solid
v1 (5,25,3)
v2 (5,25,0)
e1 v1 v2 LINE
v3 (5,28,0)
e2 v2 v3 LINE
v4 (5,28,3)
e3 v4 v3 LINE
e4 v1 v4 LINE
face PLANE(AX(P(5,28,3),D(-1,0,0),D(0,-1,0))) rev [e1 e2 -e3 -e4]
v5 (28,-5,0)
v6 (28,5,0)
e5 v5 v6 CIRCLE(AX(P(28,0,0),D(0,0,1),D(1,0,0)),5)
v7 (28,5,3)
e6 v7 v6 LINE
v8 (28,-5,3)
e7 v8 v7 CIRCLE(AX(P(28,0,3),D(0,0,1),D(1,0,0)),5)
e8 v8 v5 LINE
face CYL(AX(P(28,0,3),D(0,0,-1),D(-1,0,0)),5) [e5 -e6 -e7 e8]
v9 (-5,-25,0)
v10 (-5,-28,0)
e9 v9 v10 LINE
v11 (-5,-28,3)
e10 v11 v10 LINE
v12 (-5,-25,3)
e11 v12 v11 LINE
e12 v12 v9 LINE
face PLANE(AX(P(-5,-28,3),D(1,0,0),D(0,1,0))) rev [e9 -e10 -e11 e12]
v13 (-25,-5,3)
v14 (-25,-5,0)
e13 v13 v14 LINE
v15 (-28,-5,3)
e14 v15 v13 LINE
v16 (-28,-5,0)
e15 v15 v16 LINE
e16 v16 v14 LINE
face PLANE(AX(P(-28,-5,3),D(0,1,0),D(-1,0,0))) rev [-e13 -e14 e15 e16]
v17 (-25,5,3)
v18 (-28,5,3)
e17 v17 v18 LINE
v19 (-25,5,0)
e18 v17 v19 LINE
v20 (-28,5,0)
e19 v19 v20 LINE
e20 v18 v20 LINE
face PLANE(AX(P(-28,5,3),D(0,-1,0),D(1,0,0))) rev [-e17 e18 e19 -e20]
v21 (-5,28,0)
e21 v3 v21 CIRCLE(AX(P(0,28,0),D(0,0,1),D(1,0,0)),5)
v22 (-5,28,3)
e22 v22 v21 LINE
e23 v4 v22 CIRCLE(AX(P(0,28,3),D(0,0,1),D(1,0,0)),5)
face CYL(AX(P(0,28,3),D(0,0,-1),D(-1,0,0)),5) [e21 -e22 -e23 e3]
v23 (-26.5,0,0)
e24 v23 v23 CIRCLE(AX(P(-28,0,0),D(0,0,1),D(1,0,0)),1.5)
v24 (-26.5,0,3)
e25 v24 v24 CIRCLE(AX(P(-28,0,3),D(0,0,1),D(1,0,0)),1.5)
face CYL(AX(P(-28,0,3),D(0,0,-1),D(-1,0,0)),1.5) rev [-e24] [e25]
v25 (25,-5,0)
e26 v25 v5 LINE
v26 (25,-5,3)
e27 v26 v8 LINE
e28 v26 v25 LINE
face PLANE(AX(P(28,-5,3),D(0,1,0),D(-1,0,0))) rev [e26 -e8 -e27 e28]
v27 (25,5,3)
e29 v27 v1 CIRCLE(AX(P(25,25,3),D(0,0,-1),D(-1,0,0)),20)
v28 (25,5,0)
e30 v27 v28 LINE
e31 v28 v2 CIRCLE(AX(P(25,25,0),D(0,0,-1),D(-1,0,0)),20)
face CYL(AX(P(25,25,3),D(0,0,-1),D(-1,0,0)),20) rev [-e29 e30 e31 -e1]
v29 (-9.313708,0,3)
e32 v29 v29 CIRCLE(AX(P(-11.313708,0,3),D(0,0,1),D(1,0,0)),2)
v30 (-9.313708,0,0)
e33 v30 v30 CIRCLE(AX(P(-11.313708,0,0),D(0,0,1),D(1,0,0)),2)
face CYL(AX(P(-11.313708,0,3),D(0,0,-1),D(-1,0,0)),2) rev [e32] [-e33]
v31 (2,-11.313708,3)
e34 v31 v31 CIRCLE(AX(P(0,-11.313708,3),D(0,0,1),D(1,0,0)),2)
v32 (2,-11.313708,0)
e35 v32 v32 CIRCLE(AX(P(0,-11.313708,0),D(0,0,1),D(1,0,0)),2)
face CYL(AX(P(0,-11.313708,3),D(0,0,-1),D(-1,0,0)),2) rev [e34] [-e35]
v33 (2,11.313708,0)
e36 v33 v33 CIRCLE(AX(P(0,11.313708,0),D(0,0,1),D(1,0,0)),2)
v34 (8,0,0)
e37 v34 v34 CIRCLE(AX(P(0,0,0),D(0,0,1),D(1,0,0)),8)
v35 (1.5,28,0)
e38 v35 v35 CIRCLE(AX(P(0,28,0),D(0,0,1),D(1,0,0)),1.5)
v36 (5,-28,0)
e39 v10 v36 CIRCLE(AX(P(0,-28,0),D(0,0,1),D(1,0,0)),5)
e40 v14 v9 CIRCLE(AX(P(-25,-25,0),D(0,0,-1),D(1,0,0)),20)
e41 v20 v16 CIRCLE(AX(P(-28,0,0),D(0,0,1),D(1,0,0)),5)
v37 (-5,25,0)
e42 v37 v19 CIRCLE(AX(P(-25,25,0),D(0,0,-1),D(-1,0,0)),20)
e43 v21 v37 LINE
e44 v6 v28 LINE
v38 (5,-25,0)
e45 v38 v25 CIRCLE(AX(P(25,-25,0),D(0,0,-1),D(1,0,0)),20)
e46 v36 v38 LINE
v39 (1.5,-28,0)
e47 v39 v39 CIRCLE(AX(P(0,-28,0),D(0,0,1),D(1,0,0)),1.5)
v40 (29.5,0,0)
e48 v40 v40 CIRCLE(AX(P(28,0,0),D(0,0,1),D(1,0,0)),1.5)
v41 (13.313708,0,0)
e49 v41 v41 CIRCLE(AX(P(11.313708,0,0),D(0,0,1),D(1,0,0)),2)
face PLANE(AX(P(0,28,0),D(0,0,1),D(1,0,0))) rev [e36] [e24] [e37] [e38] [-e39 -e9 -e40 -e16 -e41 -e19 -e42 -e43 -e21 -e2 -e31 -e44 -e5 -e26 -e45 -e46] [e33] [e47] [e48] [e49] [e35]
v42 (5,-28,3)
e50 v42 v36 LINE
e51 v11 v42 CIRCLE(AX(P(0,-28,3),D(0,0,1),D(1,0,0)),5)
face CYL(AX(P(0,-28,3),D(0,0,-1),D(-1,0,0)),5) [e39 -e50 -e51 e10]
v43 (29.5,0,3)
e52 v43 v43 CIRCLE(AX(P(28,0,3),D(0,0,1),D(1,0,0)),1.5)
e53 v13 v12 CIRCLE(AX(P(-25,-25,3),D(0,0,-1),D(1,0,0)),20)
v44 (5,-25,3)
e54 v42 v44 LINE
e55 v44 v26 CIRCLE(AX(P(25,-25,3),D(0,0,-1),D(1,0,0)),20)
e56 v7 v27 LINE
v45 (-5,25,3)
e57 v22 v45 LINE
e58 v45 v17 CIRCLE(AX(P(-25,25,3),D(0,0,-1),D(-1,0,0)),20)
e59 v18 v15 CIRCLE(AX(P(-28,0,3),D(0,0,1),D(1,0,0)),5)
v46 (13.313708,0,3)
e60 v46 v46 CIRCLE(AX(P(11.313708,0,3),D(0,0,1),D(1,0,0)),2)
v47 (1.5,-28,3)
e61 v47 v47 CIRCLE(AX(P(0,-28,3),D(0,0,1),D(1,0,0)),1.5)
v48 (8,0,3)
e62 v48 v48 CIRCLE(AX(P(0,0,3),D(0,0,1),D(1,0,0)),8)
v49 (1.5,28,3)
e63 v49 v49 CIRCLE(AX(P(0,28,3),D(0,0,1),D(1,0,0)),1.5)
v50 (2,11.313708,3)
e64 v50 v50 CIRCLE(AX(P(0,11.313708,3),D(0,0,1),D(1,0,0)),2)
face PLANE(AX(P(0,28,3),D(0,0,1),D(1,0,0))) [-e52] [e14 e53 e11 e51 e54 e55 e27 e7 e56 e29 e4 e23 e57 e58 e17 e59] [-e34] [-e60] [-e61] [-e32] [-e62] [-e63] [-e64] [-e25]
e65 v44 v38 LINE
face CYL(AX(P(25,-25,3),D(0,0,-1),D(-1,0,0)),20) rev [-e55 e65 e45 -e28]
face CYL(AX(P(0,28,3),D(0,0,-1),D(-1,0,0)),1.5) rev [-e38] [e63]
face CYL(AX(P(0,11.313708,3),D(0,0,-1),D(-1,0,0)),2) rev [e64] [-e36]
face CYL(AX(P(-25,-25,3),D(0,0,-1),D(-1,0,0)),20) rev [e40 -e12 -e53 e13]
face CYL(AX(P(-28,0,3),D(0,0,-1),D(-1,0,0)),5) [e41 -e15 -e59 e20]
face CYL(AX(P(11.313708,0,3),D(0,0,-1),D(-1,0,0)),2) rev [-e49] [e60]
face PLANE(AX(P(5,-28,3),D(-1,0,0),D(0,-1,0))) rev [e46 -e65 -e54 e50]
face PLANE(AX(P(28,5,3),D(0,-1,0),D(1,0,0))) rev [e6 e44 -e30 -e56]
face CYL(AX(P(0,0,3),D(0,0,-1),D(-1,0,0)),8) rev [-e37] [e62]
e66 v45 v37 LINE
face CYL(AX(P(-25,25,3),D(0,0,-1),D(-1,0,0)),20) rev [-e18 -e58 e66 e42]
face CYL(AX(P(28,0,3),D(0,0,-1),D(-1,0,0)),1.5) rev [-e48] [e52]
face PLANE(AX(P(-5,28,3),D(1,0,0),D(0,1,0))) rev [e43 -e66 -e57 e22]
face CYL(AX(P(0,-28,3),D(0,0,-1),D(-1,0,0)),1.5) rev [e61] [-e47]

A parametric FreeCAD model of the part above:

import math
import FreeCAD as App
import Part
import Sketcher
Q = App.Units.Quantity

doc = App.newDocument("Part")
body = doc.addObject("PartDesign::Body", "Body")

# Sketch on XY plane
sketch1 = body.newObject("Sketcher::SketchObject", "Sketch")
sketch1.AttachmentSupport = (doc.getObject("XY_Plane"), [""])
sketch1.MapMode = "FlatFace"
sketch1.addGeometry(Part.LineSegment(App.Vector(5, 25, 0), App.Vector(5, 28, 0)), False)
sketch1.addGeometry(Part.ArcOfCircle(Part.Circle(App.Vector(0, 28, 0), App.Vector(0, 0, 1), 5), math.radians(0), math.radians(180)), False)
sketch1.addGeometry(Part.LineSegment(App.Vector(-5, 28, 0), App.Vector(-5, 25, 0)), False)
sketch1.addGeometry(Part.ArcOfCircle(Part.Circle(App.Vector(-25, 25, 0), App.Vector(0, 0, 1), 20), math.radians(-90), math.radians(0)), False)
sketch1.addGeometry(Part.LineSegment(App.Vector(-25, 5, 0), App.Vector(-28, 5, 0)), False)
sketch1.addGeometry(Part.ArcOfCircle(Part.Circle(App.Vector(-28, 0, 0), App.Vector(0, 0, 1), 5), math.radians(90), math.radians(270)), False)
sketch1.addGeometry(Part.LineSegment(App.Vector(-28, -5, 0), App.Vector(-25, -5, 0)), False)
sketch1.addGeometry(Part.ArcOfCircle(Part.Circle(App.Vector(-25, -25, 0), App.Vector(0, 0, 1), 20), math.radians(0), math.radians(90)), False)
sketch1.addGeometry(Part.LineSegment(App.Vector(-5, -25, 0), App.Vector(-5, -28, 0)), False)
sketch1.addGeometry(Part.ArcOfCircle(Part.Circle(App.Vector(0, -28, 0), App.Vector(0, 0, 1), 5), math.radians(180), math.radians(360)), False)
sketch1.addGeometry(Part.LineSegment(App.Vector(5, -28, 0), App.Vector(5, -25, 0)), False)
sketch1.addGeometry(Part.ArcOfCircle(Part.Circle(App.Vector(25, -25, 0), App.Vector(0, 0, 1), 20), math.radians(90), math.radians(180)), False)
sketch1.addGeometry(Part.LineSegment(App.Vector(25, -5, 0), App.Vector(28, -5, 0)), False)
sketch1.addGeometry(Part.ArcOfCircle(Part.Circle(App.Vector(28, 0, 0), App.Vector(0, 0, 1), 5), math.radians(-90), math.radians(90)), False)
sketch1.addGeometry(Part.LineSegment(App.Vector(28, 5, 0), App.Vector(25, 5, 0)), False)
sketch1.addGeometry(Part.ArcOfCircle(Part.Circle(App.Vector(25, 25, 0), App.Vector(0, 0, 1), 20), math.radians(180), math.radians(270)), False)
sketch1.addGeometry(Part.Circle(App.Vector(0, -28, 0), App.Vector(0, 0, 1), 1.5), False)
sketch1.addGeometry(Part.Circle(App.Vector(0, -11.313708, 0), App.Vector(0, 0, 1), 2), False)
sketch1.addGeometry(Part.Circle(App.Vector(28, 0, 0), App.Vector(0, 0, 1), 1.5), False)
sketch1.addGeometry(Part.Circle(App.Vector(11.313708, 0, 0), App.Vector(0, 0, 1), 2), False)
sketch1.addGeometry(Part.Circle(App.Vector(0, 0, 0), App.Vector(0, 0, 1), 8), False)
sketch1.addGeometry(Part.Circle(App.Vector(-11.313708, 0, 0), App.Vector(0, 0, 1), 2), False)
sketch1.addGeometry(Part.Circle(App.Vector(0, 11.313708, 0), App.Vector(0, 0, 1), 2), False)
sketch1.addGeometry(Part.Circle(App.Vector(-28, 0, 0), App.Vector(0, 0, 1), 1.5), False)
sketch1.addGeometry(Part.Circle(App.Vector(0, 28, 0), App.Vector(0, 0, 1), 1.5), False)
sketch1.addConstraint(Sketcher.Constraint("Tangent", 0, 2, 1, 1))
sketch1.addConstraint(Sketcher.Constraint("Tangent", 1, 2, 2, 1))
sketch1.addConstraint(Sketcher.Constraint("Tangent", 2, 2, 3, 2))
sketch1.addConstraint(Sketcher.Constraint("Tangent", 3, 1, 4, 1))
sketch1.addConstraint(Sketcher.Constraint("Tangent", 4, 2, 5, 1))
sketch1.addConstraint(Sketcher.Constraint("Tangent", 5, 2, 6, 1))
sketch1.addConstraint(Sketcher.Constraint("Tangent", 6, 2, 7, 2))
sketch1.addConstraint(Sketcher.Constraint("Tangent", 7, 1, 8, 1))
sketch1.addConstraint(Sketcher.Constraint("Tangent", 8, 2, 9, 1))
sketch1.addConstraint(Sketcher.Constraint("Tangent", 9, 2, 10, 1))
sketch1.addConstraint(Sketcher.Constraint("Tangent", 10, 2, 11, 2))
sketch1.addConstraint(Sketcher.Constraint("Tangent", 11, 1, 12, 1))
sketch1.addConstraint(Sketcher.Constraint("Tangent", 12, 2, 13, 1))
sketch1.addConstraint(Sketcher.Constraint("Tangent", 13, 2, 14, 1))
sketch1.addConstraint(Sketcher.Constraint("Tangent", 14, 2, 15, 2))
sketch1.addConstraint(Sketcher.Constraint("Tangent", 15, 1, 0, 1))
sketch1.addConstraint(Sketcher.Constraint("Vertical", 0))
sketch1.addConstraint(Sketcher.Constraint("Vertical", 2))
sketch1.addConstraint(Sketcher.Constraint("Horizontal", 4))
sketch1.addConstraint(Sketcher.Constraint("Horizontal", 6))
sketch1.addConstraint(Sketcher.Constraint("Vertical", 8))
sketch1.addConstraint(Sketcher.Constraint("Vertical", 10))
sketch1.addConstraint(Sketcher.Constraint("Horizontal", 12))
sketch1.addConstraint(Sketcher.Constraint("Horizontal", 14))
sketch1.addConstraint(Sketcher.Constraint("Coincident", 20, 3, -1, 1))
sketch1.addConstraint(Sketcher.Constraint("Coincident", 16, 3, 9, 3))
sketch1.addConstraint(Sketcher.Constraint("Coincident", 18, 3, 13, 3))
sketch1.addConstraint(Sketcher.Constraint("Coincident", 23, 3, 5, 3))
sketch1.addConstraint(Sketcher.Constraint("Coincident", 24, 3, 1, 3))
sketch1.addConstraint(Sketcher.Constraint("Equal", 1, 5))
sketch1.addConstraint(Sketcher.Constraint("Equal", 3, 7))
sketch1.addConstraint(Sketcher.Constraint("Equal", 5, 9))
sketch1.addConstraint(Sketcher.Constraint("Equal", 7, 11))
sketch1.addConstraint(Sketcher.Constraint("Equal", 9, 13))
sketch1.addConstraint(Sketcher.Constraint("Equal", 11, 15))
sketch1.addConstraint(Sketcher.Constraint("Equal", 16, 18))
sketch1.addConstraint(Sketcher.Constraint("Equal", 17, 19))
sketch1.addConstraint(Sketcher.Constraint("Equal", 19, 21))
sketch1.addConstraint(Sketcher.Constraint("Equal", 21, 22))
sketch1.addConstraint(Sketcher.Constraint("Equal", 18, 23))
sketch1.addConstraint(Sketcher.Constraint("Equal", 23, 24))
sketch1.addConstraint(Sketcher.Constraint("Symmetric", 1, 3, 9, 3, -1, 1))
sketch1.addConstraint(Sketcher.Constraint("Symmetric", 5, 3, 13, 3, -1, 1))
sketch1.addConstraint(Sketcher.Constraint("Symmetric", 19, 3, 21, 3, -1, 1))
sketch1.addConstraint(Sketcher.Constraint("Symmetric", 17, 3, 22, 3, -1, 1))
sketch1.addConstraint(Sketcher.Constraint("Symmetric", 7, 3, 11, 3, -2))
sketch1.addConstraint(Sketcher.Constraint("PointOnObject", 17, 3, -2))
sketch1.addConstraint(Sketcher.Constraint("PointOnObject", 19, 3, -1))
sketch1.addConstraint(Sketcher.Constraint("Equal", 14, 0))
sketch1.addConstraint(Sketcher.Constraint("Diameter", 16, Q("3 mm")))
sketch1.addConstraint(Sketcher.Constraint("Diameter", 17, Q("4 mm")))
sketch1.addConstraint(Sketcher.Constraint("Diameter", 20, Q("16 mm")))
sketch1.addConstraint(Sketcher.Constraint("Radius", 1, Q("5 mm")))
sketch1.addConstraint(Sketcher.Constraint("Radius", 3, Q("20 mm")))
sketch1.addConstraint(Sketcher.Constraint("DistanceX", 4, 2, 4, 1, Q("3 mm")))
sketch1.addConstraint(Sketcher.Constraint("DistanceY", 17, 3, -1, 1, Q("11.313708 mm")))
sketch1.addConstraint(Sketcher.Constraint("DistanceX", -1, 1, 19, 3, Q("11.313708 mm")))
pad1 = body.newObject("PartDesign::Pad", "Pad")
pad1.Profile = sketch1
pad1.Length = 3

doc.recompute()
